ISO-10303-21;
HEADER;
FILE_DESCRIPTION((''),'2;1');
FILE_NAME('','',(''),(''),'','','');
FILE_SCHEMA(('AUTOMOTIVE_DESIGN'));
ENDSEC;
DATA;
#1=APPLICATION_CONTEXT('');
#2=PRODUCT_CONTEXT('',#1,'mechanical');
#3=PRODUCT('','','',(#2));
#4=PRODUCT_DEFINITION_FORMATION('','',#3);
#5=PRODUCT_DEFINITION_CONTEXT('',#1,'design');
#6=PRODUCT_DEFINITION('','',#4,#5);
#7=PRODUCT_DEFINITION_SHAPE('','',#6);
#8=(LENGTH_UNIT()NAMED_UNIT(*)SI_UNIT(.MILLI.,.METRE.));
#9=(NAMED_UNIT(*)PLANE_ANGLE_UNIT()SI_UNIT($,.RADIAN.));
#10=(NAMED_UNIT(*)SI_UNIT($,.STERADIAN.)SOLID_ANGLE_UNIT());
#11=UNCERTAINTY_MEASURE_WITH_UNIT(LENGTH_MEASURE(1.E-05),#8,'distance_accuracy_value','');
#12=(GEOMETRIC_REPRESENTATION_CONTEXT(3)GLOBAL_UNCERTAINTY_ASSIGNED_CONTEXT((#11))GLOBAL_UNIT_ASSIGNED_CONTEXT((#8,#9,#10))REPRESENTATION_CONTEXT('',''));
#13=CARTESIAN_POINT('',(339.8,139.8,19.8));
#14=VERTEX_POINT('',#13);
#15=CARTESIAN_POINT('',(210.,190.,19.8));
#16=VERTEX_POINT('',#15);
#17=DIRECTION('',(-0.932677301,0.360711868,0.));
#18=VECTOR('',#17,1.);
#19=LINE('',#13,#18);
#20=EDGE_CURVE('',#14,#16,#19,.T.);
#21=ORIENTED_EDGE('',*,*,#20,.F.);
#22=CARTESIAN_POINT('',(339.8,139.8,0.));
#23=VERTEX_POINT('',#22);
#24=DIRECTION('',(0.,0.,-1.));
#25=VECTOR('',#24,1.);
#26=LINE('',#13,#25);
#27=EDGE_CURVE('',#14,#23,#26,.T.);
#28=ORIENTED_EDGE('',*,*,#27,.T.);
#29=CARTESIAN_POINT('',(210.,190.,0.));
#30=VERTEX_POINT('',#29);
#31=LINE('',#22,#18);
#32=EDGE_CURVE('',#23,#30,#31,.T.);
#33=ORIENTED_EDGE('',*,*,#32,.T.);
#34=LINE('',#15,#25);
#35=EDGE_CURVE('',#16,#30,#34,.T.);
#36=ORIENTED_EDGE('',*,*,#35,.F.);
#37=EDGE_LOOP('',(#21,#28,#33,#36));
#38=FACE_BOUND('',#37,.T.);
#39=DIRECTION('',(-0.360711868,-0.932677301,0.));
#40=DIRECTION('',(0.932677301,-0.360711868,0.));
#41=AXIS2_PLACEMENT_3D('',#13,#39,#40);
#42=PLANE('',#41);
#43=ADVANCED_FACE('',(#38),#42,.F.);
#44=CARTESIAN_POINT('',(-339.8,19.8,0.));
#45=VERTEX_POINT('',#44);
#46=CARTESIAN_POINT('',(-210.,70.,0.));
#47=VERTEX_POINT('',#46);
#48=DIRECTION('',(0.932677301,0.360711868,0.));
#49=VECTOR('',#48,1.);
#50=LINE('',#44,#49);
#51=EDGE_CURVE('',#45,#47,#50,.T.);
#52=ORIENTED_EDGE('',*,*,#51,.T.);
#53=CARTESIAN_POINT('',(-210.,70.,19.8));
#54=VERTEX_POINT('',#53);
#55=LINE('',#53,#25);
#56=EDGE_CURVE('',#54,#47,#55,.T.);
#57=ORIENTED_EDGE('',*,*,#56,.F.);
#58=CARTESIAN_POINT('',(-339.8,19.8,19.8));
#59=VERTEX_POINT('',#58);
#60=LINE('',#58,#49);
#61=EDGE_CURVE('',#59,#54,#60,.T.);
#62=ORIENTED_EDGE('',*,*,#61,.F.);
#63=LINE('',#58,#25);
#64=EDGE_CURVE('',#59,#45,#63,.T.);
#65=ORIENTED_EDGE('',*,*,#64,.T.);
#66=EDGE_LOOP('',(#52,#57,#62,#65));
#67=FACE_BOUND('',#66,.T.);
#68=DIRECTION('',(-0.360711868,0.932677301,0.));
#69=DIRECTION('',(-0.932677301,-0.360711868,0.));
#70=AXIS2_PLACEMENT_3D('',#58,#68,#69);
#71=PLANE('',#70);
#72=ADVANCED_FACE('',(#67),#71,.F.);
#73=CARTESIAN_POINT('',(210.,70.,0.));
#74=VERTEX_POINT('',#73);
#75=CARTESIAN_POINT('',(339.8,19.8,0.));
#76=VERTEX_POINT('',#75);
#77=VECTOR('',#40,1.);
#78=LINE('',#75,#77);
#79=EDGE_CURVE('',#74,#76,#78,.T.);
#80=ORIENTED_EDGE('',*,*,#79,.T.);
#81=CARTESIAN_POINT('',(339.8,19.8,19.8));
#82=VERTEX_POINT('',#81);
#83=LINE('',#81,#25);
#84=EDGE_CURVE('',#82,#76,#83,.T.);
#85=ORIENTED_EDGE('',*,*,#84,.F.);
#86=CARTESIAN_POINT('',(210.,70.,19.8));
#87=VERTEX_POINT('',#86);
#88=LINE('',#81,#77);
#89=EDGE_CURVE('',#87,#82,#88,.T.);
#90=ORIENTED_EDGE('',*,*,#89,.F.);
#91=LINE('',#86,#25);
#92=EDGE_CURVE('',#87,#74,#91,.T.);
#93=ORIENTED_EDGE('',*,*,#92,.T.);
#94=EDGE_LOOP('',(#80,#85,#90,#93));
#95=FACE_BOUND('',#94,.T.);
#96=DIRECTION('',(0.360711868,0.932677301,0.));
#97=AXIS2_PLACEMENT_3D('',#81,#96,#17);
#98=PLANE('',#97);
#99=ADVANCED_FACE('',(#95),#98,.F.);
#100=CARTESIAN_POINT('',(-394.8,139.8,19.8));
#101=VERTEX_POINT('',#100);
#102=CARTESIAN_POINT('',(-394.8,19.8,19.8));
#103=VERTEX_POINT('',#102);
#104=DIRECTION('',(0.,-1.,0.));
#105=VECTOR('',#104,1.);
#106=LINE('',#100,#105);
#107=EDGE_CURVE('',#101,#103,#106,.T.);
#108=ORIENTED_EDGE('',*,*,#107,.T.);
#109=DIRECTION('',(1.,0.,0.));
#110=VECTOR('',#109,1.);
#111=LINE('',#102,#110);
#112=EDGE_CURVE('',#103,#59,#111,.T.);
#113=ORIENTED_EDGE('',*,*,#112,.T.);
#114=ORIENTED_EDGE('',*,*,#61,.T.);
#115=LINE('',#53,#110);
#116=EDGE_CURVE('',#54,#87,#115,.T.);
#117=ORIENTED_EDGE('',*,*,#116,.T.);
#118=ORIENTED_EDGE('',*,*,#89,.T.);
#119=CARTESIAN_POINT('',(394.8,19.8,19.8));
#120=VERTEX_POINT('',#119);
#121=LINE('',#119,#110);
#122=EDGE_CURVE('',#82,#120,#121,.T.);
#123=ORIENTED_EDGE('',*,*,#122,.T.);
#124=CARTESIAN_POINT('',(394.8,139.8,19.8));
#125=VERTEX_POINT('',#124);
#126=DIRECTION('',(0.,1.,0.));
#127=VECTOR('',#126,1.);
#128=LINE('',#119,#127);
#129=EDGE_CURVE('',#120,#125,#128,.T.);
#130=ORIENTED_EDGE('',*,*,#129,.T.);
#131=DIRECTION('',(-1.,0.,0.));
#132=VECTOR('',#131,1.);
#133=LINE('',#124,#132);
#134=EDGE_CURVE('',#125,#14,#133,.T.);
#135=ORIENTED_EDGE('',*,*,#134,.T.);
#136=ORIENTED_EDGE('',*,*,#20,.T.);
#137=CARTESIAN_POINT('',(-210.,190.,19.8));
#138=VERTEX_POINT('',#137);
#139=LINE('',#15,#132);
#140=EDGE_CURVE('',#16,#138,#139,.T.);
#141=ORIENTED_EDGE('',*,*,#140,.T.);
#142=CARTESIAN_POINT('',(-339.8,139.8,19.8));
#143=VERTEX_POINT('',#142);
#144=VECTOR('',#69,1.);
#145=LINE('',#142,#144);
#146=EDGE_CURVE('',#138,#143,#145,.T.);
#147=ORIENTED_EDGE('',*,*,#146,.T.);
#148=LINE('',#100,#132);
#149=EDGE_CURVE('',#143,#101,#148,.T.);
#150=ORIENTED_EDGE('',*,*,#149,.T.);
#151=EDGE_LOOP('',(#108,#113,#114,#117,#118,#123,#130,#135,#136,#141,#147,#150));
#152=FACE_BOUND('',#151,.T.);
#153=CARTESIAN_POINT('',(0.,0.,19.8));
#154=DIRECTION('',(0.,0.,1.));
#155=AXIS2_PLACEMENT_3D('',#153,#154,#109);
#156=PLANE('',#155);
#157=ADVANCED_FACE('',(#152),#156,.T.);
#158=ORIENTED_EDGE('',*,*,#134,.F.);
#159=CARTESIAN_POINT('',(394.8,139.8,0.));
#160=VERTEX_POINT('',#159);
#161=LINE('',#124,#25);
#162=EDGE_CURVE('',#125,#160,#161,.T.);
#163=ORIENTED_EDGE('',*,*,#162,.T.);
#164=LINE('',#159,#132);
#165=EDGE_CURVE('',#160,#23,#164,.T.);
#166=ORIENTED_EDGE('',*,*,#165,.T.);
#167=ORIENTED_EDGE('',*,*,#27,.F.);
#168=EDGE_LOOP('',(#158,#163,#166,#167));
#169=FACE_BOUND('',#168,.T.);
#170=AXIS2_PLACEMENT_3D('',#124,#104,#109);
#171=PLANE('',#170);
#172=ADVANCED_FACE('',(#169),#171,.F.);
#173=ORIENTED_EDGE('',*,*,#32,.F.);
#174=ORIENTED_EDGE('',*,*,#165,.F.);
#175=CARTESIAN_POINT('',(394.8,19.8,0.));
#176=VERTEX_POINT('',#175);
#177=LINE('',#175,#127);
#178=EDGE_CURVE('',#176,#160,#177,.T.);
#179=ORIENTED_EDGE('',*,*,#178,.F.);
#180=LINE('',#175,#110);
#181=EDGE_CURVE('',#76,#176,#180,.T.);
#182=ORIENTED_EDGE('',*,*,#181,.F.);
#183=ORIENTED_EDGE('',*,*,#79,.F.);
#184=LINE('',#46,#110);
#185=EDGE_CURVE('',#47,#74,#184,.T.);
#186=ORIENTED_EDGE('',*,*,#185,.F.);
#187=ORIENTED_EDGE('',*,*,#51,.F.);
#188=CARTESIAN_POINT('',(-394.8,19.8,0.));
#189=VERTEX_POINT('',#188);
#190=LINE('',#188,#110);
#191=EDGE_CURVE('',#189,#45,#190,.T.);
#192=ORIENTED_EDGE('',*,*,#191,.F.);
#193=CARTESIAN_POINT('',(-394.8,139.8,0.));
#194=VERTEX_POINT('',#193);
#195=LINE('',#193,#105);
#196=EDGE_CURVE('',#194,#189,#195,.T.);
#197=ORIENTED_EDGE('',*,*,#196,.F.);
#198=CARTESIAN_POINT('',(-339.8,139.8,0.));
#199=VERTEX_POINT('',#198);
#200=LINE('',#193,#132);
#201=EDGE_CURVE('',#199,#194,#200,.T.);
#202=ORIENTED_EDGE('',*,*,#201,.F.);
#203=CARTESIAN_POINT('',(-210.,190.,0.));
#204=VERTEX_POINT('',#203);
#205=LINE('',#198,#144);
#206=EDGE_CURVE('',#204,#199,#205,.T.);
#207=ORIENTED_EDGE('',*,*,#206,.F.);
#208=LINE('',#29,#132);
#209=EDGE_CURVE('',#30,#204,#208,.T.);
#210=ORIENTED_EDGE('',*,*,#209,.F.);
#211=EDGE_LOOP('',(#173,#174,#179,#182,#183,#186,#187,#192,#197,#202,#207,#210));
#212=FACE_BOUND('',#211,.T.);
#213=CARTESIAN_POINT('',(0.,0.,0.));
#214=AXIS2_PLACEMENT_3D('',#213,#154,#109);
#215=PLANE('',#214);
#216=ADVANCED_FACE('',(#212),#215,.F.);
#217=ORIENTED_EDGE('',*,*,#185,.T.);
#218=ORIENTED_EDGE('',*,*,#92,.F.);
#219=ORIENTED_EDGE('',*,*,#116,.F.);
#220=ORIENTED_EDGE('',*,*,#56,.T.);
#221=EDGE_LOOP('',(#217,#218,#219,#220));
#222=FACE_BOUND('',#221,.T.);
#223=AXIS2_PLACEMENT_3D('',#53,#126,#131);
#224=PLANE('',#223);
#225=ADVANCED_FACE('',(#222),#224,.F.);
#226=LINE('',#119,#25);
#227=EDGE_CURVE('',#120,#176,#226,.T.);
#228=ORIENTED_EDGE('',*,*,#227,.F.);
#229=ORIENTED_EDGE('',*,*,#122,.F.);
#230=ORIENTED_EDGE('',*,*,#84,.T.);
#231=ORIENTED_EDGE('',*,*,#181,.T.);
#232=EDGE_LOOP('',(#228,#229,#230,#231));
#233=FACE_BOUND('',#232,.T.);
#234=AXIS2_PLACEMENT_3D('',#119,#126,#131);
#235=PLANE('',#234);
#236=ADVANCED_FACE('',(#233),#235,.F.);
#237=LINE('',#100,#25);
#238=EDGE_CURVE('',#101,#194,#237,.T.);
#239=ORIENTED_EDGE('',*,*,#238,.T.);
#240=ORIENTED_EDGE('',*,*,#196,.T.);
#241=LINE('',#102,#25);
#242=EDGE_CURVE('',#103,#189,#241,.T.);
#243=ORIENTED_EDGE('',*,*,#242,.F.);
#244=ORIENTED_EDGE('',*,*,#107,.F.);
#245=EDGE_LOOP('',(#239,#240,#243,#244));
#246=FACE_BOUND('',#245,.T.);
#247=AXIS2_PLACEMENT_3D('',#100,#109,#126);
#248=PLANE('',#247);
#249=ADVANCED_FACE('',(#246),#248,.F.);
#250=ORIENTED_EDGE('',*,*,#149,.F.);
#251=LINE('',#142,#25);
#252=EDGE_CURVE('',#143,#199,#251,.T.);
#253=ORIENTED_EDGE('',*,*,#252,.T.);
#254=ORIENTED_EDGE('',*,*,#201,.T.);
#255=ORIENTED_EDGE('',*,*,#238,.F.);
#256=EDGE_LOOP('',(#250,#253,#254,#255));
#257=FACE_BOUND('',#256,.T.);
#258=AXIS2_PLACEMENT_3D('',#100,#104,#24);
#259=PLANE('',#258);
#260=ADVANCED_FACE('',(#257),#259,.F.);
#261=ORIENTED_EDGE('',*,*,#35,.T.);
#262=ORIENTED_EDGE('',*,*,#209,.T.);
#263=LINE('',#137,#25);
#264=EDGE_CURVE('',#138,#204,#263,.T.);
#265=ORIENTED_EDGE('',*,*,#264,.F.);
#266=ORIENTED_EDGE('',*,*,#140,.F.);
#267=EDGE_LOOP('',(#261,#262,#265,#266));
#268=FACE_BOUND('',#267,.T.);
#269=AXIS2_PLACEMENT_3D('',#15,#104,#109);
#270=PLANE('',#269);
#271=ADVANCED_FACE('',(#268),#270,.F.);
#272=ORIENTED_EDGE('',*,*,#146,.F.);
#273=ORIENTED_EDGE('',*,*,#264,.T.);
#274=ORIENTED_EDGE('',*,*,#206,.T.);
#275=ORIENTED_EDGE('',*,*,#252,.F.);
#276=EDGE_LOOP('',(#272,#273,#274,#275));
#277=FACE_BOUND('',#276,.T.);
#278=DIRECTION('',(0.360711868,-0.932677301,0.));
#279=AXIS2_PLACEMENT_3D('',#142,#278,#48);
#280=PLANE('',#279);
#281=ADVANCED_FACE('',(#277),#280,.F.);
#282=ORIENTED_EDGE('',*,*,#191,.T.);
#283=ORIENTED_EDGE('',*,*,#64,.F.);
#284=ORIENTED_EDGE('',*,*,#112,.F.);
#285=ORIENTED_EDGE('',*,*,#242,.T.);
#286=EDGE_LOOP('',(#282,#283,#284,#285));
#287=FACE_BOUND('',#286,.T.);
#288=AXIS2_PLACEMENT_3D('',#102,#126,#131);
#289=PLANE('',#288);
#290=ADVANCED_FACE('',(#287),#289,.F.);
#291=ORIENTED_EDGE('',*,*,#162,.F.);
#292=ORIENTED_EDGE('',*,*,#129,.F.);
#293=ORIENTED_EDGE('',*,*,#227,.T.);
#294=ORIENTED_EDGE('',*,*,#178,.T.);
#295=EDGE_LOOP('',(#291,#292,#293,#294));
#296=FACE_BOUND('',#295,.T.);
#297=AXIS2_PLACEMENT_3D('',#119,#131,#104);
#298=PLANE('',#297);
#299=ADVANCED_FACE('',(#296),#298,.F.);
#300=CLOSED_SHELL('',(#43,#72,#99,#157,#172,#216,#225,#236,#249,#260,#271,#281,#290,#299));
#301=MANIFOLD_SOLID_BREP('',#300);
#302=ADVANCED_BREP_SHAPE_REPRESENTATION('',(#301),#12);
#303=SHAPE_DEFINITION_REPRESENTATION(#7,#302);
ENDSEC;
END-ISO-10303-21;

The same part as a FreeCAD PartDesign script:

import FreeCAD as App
import Part
import Sketcher
from FreeCAD import Vector

doc = App.newDocument("Part")
body = doc.addObject("PartDesign::Body", "Body")

sketch1 = doc.addObject("Sketcher::SketchObject", "Sketch")
body.addObject(sketch1)
sketch1.AttachmentSupport = (doc.XY_Plane, [""])
sketch1.MapMode = "FlatFace"
sketch1.addGeometry([
    Part.LineSegment(Vector(-210, 70, 0), Vector(210, 70, 0)),
    Part.LineSegment(Vector(210, 70, 0), Vector(339.8, 19.8, 0)),
    Part.LineSegment(Vector(339.8, 19.8, 0), Vector(394.8, 19.8, 0)),
    Part.LineSegment(Vector(394.8, 19.8, 0), Vector(394.8, 139.8, 0)),
    Part.LineSegment(Vector(394.8, 139.8, 0), Vector(339.8, 139.8, 0)),
    Part.LineSegment(Vector(339.8, 139.8, 0), Vector(210, 190, 0)),
    Part.LineSegment(Vector(210, 190, 0), Vector(-210, 190, 0)),
    Part.LineSegment(Vector(-210, 190, 0), Vector(-339.8, 139.8, 0)),
    Part.LineSegment(Vector(-339.8, 139.8, 0), Vector(-394.8, 139.8, 0)),
    Part.LineSegment(Vector(-394.8, 139.8, 0), Vector(-394.8, 19.8, 0)),
    Part.LineSegment(Vector(-394.8, 19.8, 0), Vector(-339.8, 19.8, 0)),
    Part.LineSegment(Vector(-339.8, 19.8, 0), Vector(-210, 70, 0)),
], False)
sketch1.addConstraint([
    Sketcher.Constraint("Coincident", 0, 2, 1, 1),
    Sketcher.Constraint("Coincident", 1, 2, 2, 1),
    Sketcher.Constraint("Coincident", 2, 2, 3, 1),
    Sketcher.Constraint("Coincident", 3, 2, 4, 1),
    Sketcher.Constraint("Coincident", 4, 2, 5, 1),
    Sketcher.Constraint("Coincident", 5, 2, 6, 1),
    Sketcher.Constraint("Coincident", 6, 2, 7, 1),
    Sketcher.Constraint("Coincident", 7, 2, 8, 1),
    Sketcher.Constraint("Coincident", 8, 2, 9, 1),
    Sketcher.Constraint("Coincident", 9, 2, 10, 1),
    Sketcher.Constraint("Coincident", 10, 2, 11, 1),
    Sketcher.Constraint("Coincident", 11, 2, 0, 1),
    Sketcher.Constraint("Horizontal", 0),
    Sketcher.Constraint("Horizontal", 2),
    Sketcher.Constraint("Vertical", 3),
    Sketcher.Constraint("Horizontal", 4),
    Sketcher.Constraint("Horizontal", 6),
    Sketcher.Constraint("Horizontal", 8),
    Sketcher.Constraint("Vertical", 9),
    Sketcher.Constraint("Horizontal", 10),
    Sketcher.Constraint("Symmetric", 4, 2, 7, 2, -2),
    Sketcher.Constraint("Symmetric", 2, 2, 9, 2, -2),
    Sketcher.Constraint("Parallel", 1, 5),
    Sketcher.Constraint("Parallel", 7, 11),
    Sketcher.Constraint("Vertical", 1, 2, 4, 2),
    Sketcher.Constraint("Vertical", 0, 2, 5, 2),
    Sketcher.Constraint("Vertical", 7, 2, 10, 2),
    Sketcher.Constraint("Equal", 5, 7),
    Sketcher.Constraint("DistanceX", 0, 1, 0, 2, 420.0),
    Sketcher.Constraint("DistanceX", 2, 1, 2, 2, 55.0),
    Sketcher.Constraint("DistanceY", 3, 1, 3, 2, 120.0),
    Sketcher.Constraint("DistanceY", -1, 1, 0, 2, 70.0),
    Sketcher.Constraint("DistanceX", -1, 1, 1, 2, 339.8),
    Sketcher.Constraint("DistanceY", -1, 1, 1, 2, 19.8),
])
pad1 = doc.addObject("PartDesign::Pad", "Pad")
body.addObject(pad1)
pad1.Profile = sketch1
pad1.Length = 19.8

doc.recompute()
